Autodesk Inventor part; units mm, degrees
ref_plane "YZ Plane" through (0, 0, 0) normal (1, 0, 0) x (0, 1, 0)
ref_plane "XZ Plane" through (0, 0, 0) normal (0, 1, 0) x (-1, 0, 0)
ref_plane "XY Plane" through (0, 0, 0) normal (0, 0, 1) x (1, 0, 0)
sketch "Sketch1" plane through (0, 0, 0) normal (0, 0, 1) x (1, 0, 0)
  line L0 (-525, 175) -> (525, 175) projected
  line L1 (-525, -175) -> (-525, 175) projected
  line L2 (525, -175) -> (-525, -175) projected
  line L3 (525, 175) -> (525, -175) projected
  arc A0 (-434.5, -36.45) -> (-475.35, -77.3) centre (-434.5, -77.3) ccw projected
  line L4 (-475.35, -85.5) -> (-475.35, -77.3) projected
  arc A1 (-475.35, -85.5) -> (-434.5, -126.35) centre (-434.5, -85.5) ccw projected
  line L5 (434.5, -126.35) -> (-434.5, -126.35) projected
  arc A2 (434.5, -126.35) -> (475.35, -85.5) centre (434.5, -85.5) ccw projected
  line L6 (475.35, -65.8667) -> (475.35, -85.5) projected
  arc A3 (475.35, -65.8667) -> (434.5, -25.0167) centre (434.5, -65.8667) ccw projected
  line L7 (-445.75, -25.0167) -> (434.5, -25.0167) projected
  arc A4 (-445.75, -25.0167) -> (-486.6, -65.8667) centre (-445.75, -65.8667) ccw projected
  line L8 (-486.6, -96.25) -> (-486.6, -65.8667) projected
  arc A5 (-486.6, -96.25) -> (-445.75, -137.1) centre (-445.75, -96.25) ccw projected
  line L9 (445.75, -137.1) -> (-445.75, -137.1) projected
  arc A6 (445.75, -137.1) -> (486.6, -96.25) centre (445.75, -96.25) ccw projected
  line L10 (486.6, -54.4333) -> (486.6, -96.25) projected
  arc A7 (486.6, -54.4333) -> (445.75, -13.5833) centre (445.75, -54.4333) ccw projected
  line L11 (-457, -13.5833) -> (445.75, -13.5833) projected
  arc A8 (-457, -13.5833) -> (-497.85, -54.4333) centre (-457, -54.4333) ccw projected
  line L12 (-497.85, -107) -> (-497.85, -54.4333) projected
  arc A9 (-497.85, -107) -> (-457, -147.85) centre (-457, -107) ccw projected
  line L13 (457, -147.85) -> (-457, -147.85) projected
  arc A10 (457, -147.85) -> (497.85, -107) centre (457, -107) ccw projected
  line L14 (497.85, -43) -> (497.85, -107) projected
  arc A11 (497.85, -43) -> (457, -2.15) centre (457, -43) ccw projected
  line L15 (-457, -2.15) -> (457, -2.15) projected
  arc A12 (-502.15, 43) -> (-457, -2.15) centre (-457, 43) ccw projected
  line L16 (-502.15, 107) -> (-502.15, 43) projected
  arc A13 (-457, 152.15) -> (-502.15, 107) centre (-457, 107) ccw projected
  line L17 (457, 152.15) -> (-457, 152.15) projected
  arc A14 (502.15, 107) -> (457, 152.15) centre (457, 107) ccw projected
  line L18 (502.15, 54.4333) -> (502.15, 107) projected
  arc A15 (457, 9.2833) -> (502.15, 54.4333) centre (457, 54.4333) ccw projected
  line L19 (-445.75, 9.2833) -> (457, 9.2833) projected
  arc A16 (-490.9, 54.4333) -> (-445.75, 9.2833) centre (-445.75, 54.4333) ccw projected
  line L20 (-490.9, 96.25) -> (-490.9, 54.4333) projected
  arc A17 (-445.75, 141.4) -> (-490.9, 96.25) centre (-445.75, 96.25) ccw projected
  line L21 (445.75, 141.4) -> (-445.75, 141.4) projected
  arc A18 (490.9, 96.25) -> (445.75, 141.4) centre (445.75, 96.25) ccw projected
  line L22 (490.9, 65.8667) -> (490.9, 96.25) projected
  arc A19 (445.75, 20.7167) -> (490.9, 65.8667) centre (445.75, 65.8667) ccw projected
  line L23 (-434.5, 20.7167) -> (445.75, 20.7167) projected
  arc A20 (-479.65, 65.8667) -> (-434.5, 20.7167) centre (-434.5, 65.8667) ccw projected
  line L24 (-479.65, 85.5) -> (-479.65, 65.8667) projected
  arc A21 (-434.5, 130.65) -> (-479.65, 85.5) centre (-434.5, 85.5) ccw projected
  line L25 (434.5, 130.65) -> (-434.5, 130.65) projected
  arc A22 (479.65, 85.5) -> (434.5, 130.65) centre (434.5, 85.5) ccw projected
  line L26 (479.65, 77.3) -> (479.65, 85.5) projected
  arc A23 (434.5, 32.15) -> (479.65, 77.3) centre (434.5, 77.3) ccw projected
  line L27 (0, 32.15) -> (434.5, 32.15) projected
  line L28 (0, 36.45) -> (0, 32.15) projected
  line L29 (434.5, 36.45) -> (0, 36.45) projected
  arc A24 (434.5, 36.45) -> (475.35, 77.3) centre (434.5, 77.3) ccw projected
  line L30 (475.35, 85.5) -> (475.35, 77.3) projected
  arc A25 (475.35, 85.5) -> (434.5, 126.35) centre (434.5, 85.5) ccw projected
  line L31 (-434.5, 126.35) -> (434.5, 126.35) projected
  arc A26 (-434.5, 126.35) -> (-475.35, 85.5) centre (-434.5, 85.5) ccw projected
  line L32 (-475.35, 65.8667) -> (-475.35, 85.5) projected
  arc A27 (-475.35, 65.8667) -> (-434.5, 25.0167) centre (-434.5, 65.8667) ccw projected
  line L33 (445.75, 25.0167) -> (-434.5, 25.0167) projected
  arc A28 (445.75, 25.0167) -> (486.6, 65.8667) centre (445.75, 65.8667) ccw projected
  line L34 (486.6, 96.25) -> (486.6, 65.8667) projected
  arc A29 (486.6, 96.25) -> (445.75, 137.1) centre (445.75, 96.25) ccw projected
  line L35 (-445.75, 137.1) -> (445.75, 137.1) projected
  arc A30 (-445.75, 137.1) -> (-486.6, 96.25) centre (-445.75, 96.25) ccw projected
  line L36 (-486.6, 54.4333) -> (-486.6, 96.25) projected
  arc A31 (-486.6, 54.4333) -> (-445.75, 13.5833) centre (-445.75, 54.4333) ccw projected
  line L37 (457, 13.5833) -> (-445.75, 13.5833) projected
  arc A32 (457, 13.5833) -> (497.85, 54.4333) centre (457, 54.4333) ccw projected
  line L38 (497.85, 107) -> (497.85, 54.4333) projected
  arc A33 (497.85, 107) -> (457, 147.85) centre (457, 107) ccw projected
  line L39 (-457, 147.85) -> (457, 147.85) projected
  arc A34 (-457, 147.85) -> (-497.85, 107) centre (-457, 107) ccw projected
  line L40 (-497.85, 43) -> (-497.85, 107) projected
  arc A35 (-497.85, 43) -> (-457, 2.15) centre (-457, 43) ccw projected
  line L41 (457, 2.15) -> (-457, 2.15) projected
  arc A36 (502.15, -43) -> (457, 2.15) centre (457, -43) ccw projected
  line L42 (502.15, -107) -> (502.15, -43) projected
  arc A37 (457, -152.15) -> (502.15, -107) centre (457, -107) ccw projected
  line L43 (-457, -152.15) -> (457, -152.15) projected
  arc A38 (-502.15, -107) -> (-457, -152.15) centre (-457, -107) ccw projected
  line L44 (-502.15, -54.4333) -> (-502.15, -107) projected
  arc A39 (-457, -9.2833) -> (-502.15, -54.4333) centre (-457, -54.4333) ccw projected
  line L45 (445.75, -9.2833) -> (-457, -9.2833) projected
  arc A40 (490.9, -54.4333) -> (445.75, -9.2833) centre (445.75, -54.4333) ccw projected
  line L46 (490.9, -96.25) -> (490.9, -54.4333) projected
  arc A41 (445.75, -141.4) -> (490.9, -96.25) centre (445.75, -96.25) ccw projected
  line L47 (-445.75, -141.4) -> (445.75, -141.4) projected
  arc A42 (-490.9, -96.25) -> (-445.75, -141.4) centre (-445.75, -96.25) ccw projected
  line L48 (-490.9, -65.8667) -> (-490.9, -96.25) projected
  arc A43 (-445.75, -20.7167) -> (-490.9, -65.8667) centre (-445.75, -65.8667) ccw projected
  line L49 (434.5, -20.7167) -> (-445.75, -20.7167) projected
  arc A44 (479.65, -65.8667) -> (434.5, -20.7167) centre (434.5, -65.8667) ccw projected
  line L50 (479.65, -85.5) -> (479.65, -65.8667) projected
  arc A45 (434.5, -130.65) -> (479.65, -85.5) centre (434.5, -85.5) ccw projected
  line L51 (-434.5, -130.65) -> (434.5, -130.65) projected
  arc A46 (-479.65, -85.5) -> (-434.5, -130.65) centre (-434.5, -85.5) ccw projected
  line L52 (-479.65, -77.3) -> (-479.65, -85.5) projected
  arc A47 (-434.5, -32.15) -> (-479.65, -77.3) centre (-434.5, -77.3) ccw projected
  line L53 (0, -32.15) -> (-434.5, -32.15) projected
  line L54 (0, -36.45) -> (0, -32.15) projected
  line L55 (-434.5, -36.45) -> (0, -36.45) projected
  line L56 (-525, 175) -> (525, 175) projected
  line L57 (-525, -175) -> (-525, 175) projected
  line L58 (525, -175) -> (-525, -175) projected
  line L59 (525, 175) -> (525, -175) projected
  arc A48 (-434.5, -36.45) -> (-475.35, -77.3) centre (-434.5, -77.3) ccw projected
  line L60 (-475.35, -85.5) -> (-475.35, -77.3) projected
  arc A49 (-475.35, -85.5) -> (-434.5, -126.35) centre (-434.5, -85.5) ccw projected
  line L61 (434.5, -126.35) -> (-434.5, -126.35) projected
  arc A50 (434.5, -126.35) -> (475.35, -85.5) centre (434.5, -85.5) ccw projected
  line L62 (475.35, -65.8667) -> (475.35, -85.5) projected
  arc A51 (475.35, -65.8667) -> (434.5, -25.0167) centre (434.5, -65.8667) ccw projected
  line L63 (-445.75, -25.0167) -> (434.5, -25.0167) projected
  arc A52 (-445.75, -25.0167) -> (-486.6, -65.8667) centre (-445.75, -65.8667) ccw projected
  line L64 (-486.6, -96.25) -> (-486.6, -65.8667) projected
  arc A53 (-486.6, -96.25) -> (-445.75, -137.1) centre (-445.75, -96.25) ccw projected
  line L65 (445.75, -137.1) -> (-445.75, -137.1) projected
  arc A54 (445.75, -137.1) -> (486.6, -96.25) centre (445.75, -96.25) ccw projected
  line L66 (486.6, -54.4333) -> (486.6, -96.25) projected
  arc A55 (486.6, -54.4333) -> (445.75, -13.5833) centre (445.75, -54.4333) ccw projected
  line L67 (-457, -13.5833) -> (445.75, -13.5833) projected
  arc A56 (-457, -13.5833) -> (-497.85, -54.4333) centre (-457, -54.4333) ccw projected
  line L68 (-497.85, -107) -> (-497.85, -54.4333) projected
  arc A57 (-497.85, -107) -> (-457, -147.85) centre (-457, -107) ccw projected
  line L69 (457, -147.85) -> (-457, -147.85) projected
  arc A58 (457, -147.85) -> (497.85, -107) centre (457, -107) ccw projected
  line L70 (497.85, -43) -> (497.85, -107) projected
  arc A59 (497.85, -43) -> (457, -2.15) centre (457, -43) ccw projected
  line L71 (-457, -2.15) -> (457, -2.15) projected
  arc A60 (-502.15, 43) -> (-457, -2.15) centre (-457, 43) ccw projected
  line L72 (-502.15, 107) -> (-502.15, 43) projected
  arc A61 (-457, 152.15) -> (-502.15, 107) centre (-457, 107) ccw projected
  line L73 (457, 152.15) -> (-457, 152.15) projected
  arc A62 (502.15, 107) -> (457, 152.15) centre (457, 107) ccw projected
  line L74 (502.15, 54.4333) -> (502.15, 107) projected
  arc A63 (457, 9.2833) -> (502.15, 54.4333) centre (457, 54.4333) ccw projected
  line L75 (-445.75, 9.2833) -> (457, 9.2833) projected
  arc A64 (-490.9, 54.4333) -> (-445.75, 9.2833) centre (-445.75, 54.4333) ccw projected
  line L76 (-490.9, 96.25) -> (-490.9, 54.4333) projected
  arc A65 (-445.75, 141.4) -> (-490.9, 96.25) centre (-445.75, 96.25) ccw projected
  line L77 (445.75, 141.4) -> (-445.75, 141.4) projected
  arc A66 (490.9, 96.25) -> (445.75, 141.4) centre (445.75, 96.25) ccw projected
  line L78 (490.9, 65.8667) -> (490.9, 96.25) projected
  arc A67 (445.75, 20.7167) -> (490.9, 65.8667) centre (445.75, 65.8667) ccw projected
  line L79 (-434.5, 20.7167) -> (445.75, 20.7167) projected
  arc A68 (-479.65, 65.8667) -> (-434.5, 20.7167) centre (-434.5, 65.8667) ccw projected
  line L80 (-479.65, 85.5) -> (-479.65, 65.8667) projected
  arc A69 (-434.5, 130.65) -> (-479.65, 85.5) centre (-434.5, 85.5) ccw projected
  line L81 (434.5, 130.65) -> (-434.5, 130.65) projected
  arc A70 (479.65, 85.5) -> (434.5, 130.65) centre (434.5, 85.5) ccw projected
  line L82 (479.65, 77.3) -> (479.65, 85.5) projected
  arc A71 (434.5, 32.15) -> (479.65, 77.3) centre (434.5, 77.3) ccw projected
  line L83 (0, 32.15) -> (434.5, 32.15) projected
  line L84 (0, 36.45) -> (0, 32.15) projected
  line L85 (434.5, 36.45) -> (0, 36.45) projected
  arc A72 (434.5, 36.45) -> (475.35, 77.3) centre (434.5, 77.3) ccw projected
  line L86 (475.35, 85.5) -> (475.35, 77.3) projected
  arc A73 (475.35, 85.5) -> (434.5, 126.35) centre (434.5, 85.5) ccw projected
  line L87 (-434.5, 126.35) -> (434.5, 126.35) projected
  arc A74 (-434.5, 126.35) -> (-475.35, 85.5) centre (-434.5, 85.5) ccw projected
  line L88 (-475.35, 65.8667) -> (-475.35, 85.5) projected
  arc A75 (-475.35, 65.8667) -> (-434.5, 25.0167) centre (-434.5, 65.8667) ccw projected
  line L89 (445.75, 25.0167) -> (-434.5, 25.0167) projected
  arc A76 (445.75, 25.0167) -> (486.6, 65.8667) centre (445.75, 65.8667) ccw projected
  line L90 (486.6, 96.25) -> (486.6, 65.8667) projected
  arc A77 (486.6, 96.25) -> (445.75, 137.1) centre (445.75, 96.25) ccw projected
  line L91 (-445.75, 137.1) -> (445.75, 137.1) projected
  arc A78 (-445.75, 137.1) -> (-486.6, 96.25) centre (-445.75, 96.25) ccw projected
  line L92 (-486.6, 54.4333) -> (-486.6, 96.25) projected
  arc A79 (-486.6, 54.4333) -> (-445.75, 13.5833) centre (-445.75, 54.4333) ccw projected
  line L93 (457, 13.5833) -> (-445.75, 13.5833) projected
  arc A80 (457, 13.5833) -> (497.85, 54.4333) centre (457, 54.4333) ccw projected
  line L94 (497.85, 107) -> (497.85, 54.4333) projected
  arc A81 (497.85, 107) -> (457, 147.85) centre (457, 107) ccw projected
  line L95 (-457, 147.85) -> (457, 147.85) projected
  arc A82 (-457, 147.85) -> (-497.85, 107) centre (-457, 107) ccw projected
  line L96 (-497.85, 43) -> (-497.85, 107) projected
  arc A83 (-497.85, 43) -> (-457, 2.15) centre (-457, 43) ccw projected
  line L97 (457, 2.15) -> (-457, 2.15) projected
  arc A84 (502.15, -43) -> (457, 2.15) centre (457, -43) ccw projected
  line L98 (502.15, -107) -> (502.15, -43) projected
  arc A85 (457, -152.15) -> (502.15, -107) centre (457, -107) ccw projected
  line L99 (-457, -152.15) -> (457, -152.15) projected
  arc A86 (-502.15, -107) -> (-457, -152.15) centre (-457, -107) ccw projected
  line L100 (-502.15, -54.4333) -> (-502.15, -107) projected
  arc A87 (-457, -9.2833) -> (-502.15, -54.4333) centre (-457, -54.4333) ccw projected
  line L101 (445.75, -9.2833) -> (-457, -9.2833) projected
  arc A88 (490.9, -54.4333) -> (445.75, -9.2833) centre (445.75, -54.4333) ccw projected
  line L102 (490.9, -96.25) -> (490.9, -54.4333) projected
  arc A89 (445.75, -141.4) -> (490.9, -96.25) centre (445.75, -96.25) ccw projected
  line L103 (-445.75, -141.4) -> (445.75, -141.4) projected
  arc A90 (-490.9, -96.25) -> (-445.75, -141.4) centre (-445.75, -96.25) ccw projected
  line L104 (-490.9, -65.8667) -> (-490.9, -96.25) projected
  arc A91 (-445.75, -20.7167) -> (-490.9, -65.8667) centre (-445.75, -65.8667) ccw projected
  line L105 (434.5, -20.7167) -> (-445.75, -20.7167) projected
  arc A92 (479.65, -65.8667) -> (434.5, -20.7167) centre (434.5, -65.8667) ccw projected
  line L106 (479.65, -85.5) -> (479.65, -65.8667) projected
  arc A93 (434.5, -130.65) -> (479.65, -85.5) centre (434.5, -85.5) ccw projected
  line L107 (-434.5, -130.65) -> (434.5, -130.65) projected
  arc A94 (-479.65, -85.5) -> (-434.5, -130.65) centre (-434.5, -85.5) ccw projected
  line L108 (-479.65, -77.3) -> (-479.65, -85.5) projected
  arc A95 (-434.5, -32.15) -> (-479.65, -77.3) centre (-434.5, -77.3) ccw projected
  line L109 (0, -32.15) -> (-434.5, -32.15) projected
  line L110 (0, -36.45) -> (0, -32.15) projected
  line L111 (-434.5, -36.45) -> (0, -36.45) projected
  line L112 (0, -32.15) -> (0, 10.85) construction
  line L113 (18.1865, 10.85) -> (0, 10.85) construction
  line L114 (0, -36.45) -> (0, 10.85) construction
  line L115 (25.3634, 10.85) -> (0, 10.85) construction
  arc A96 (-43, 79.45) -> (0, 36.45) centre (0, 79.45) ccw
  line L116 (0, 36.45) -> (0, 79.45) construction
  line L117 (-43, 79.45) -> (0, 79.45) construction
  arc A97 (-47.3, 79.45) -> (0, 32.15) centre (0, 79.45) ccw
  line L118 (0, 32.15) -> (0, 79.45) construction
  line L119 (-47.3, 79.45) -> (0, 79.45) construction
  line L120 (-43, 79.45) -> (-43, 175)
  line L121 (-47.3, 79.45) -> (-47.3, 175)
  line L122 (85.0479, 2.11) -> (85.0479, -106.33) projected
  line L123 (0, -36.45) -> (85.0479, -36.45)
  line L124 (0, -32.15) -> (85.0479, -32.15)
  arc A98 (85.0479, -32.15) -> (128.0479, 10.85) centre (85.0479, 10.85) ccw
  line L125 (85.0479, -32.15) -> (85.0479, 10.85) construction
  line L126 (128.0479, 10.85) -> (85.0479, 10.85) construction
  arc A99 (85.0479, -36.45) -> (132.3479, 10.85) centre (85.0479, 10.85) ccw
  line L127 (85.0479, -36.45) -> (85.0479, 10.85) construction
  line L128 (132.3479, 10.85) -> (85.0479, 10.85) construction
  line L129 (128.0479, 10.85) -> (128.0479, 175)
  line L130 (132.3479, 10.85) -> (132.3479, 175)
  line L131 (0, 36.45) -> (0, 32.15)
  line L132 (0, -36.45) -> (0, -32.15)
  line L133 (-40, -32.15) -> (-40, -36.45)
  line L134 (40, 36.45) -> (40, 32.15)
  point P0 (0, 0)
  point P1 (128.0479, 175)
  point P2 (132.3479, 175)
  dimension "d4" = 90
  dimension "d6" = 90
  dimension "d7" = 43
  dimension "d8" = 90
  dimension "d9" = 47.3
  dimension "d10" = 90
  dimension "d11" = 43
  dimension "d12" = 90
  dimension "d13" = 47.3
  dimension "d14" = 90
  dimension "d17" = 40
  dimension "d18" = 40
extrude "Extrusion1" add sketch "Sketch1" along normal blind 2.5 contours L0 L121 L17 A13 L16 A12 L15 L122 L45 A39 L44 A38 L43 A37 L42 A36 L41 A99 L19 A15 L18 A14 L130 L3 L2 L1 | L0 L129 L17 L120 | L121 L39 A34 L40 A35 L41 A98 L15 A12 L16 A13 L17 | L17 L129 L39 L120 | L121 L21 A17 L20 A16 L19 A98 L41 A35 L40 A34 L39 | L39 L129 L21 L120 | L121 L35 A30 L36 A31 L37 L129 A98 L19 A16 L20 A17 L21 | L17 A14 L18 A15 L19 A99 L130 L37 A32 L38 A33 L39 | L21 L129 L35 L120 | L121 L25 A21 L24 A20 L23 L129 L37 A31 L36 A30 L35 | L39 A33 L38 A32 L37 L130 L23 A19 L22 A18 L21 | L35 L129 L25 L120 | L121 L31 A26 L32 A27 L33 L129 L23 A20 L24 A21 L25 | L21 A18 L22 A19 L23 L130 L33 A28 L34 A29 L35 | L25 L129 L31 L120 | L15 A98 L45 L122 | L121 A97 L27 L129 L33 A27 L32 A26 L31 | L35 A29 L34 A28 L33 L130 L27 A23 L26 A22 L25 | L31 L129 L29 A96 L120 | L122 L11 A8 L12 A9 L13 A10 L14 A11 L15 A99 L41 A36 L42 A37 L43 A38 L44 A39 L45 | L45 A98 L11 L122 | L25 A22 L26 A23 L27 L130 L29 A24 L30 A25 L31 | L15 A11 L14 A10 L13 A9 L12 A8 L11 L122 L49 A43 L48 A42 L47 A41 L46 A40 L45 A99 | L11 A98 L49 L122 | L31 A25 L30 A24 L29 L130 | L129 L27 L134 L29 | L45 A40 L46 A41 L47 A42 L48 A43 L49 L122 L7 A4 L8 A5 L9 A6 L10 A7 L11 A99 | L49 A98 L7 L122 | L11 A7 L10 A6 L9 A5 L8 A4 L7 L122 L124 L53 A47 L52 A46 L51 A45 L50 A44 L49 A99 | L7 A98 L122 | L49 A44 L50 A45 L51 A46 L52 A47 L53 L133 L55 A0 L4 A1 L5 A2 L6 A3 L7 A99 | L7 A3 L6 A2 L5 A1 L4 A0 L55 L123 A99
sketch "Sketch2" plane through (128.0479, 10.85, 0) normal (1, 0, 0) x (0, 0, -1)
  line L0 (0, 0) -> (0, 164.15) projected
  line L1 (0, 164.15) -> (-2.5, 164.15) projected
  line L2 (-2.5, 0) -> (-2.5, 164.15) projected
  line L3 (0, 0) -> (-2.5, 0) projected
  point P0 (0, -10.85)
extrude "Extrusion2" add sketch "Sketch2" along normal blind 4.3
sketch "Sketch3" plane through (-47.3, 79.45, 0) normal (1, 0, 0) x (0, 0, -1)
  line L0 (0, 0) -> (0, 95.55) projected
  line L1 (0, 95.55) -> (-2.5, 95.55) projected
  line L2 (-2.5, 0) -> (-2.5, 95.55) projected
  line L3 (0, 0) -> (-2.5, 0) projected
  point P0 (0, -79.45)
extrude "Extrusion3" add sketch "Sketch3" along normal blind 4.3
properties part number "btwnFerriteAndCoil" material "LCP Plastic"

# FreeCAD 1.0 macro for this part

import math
import FreeCAD as App
import Part
import Sketcher
from FreeCAD import Vector


def add_polygon(sketch, points):
    """Adds a closed chain of lines whose ends are joined by coincident constraints."""
    first, n = sketch.GeometryCount, len(points)
    for a, b in zip(points, points[1:] + points[:1]):
        sketch.addGeometry(Part.LineSegment(App.Vector(*a, 0), App.Vector(*b, 0)), False)
    for i in range(n):
        sketch.addConstraint(Sketcher.Constraint("Coincident", first + i, 2, first + (i + 1) % n, 1))

doc = App.newDocument("Part")
body = doc.addObject("PartDesign::Body", "Body")

sketch1 = body.newObject("Sketcher::SketchObject", "Sketch")
sketch1.AttachmentSupport = (doc.getObject("XY_Plane"), [""])
sketch1.MapMode = "FlatFace"
sketch1.addGeometry([
    Part.LineSegment(Vector(-47.3, 175, 0), Vector(-525, 175, 0)),
    Part.LineSegment(Vector(-525, 175, 0), Vector(-525, -175, 0)),
    Part.LineSegment(Vector(-525, -175, 0), Vector(525, -175, 0)),
    Part.LineSegment(Vector(525, -175, 0), Vector(525, 175, 0)),
    Part.LineSegment(Vector(525, 175, 0), Vector(132.3, 175, 0)),
    Part.LineSegment(Vector(132.3, 175, 0), Vector(132.3, 10.8, 0)),
    Part.ArcOfCircle(Part.Circle(Vector(85, 10.8, 0), Vector(0, 0, 1), 47.3), math.radians(-90), math.radians(0)),
    Part.LineSegment(Vector(85, -36.5, 0), Vector(-40, -36.5, 0)),
    Part.LineSegment(Vector(-40, -36.5, 0), Vector(-40, -32.1, 0)),
    Part.LineSegment(Vector(-40, -32.1, 0), Vector(85, -32.1, 0)),
    Part.ArcOfCircle(Part.Circle(Vector(85, 10.8, 0), Vector(0, 0, 1), 43), math.radians(-90), math.radians(0)),
    Part.LineSegment(Vector(128, 10.8, 0), Vector(128, 175, 0)),
    Part.LineSegment(Vector(128, 175, 0), Vector(-43, 175, 0)),
    Part.LineSegment(Vector(-43, 175, 0), Vector(-43, 79.5, 0)),
    Part.ArcOfCircle(Part.Circle(Vector(0, 79.5, 0), Vector(0, 0, 1), 43), math.radians(180), math.radians(270)),
    Part.LineSegment(Vector(0, 36.5, 0), Vector(40, 36.5, 0)),
    Part.LineSegment(Vector(40, 36.5, 0), Vector(40, 32.1, 0)),
    Part.LineSegment(Vector(40, 32.1, 0), Vector(0, 32.1, 0)),
    Part.ArcOfCircle(Part.Circle(Vector(0, 79.5, 0), Vector(0, 0, 1), 47.3), math.radians(180), math.radians(270)),
    Part.LineSegment(Vector(-47.3, 79.5, 0), Vector(-47.3, 175, 0)),
], False)
sketch1.addConstraint([
    Sketcher.Constraint("Coincident", 0, 2, 1, 1),
    Sketcher.Constraint("Coincident", 1, 2, 2, 1),
    Sketcher.Constraint("Coincident", 2, 2, 3, 1),
    Sketcher.Constraint("Coincident", 3, 2, 4, 1),
    Sketcher.Constraint("Coincident", 4, 2, 5, 1),
    Sketcher.Constraint("Tangent", 5, 2, 6, 2),
    Sketcher.Constraint("Tangent", 6, 1, 7, 1),
    Sketcher.Constraint("Coincident", 7, 2, 8, 1),
    Sketcher.Constraint("Coincident", 8, 2, 9, 1),
    Sketcher.Constraint("Tangent", 9, 2, 10, 1),
    Sketcher.Constraint("Tangent", 10, 2, 11, 1),
    Sketcher.Constraint("Coincident", 11, 2, 12, 1),
    Sketcher.Constraint("Coincident", 12, 2, 13, 1),
    Sketcher.Constraint("Tangent", 13, 2, 14, 1),
    Sketcher.Constraint("Tangent", 14, 2, 15, 1),
    Sketcher.Constraint("Coincident", 15, 2, 16, 1),
    Sketcher.Constraint("Coincident", 16, 2, 17, 1),
    Sketcher.Constraint("Tangent", 17, 2, 18, 2),
    Sketcher.Constraint("Tangent", 18, 1, 19, 1),
    Sketcher.Constraint("Coincident", 19, 2, 0, 1),
    Sketcher.Constraint("Horizontal", 0),
    Sketcher.Constraint("Vertical", 1),
    Sketcher.Constraint("Horizontal", 2),
    Sketcher.Constraint("Vertical", 3),
    Sketcher.Constraint("Horizontal", 4),
    Sketcher.Constraint("Vertical", 5),
    Sketcher.Constraint("Horizontal", 7),
    Sketcher.Constraint("Vertical", 8),
    Sketcher.Constraint("Horizontal", 9),
    Sketcher.Constraint("Vertical", 11),
    Sketcher.Constraint("Horizontal", 12),
    Sketcher.Constraint("Vertical", 13),
    Sketcher.Constraint("Horizontal", 15),
    Sketcher.Constraint("Vertical", 16),
    Sketcher.Constraint("Horizontal", 17),
    Sketcher.Constraint("Vertical", 19),
    Sketcher.Constraint("Coincident", 10, 3, 6, 3),
    Sketcher.Constraint("Coincident", 18, 3, 14, 3),
    Sketcher.Constraint("Equal", 10, 14),
    Sketcher.Constraint("Equal", 6, 18),
    Sketcher.Constraint("Symmetric", 0, 2, 2, 2, -1, 1),
    Sketcher.Constraint("Symmetric", 7, 2, 15, 2, -1, 1),
    Sketcher.Constraint("PointOnObject", 14, 3, -2),
    Sketcher.Constraint("Horizontal", 0, 2, 3, 2),
    Sketcher.Constraint("Horizontal", 4, 2, 11, 2),
    Sketcher.Constraint("Radius", 10, 43.0),
    Sketcher.Constraint("Radius", 6, 47.3),
    Sketcher.Constraint("DistanceX", 15, 1, 15, 2, 40.0),
    Sketcher.Constraint("DistanceX", 2, 1, 2, 2, 1050.0),
    Sketcher.Constraint("DistanceY", 1, 2, 1, 1, 350.0),
    Sketcher.Constraint("DistanceY", 5, 2, 5, 1, 164.15),
    Sketcher.Constraint("DistanceX", 4, 2, 4, 1, 392.652),
])
pad1 = body.newObject("PartDesign::Pad", "Pad")
pad1.Profile = sketch1
pad1.Length = 2.5

sketch2 = body.newObject("Sketcher::SketchObject", "Sketch001")
sketch2.AttachmentSupport = (doc.getObject("YZ_Plane"), [""])
sketch2.MapMode = "FlatFace"
sketch2.AttachmentOffset = App.Placement(Vector(0, 0, 128.0479), App.Rotation())
add_polygon(sketch2, [(10.8, 2.5), (10.8, 0), (175, 0), (175, 2.5)])
sketch2.addConstraint([
    Sketcher.Constraint("Vertical", 0),
    Sketcher.Constraint("Horizontal", 1),
    Sketcher.Constraint("Vertical", 2),
    Sketcher.Constraint("Horizontal", 3),
    Sketcher.Constraint("PointOnObject", 0, 2, -1),
    Sketcher.Constraint("DistanceY", 0, 2, 0, 1, 2.5),
    Sketcher.Constraint("DistanceX", -1, 1, 1, 2, 175.0),
    Sketcher.Constraint("DistanceX", 1, 1, 1, 2, 164.15),
])
pad2 = body.newObject("PartDesign::Pad", "Pad001")
pad2.Profile = sketch2
pad2.Length = 4.3

sketch3 = body.newObject("Sketcher::SketchObject", "Sketch002")
sketch3.AttachmentSupport = (doc.getObject("YZ_Plane"), [""])
sketch3.MapMode = "FlatFace"
sketch3.AttachmentOffset = App.Placement(Vector(0, 0, -47.3), App.Rotation())
add_polygon(sketch3, [(79.5, 2.5), (79.5, 0), (175, 0), (175, 2.5)])
sketch3.addConstraint([
    Sketcher.Constraint("Vertical", 0),
    Sketcher.Constraint("Horizontal", 1),
    Sketcher.Constraint("Vertical", 2),
    Sketcher.Constraint("Horizontal", 3),
    Sketcher.Constraint("PointOnObject", 0, 2, -1),
    Sketcher.Constraint("DistanceY", 0, 2, 0, 1, 2.5),
    Sketcher.Constraint("DistanceX", -1, 1, 1, 2, 175.0),
    Sketcher.Constraint("DistanceX", 1, 1, 1, 2, 95.55),
])
pad3 = body.newObject("PartDesign::Pad", "Pad002")
pad3.Profile = sketch3
pad3.Length = 4.3

doc.recompute()
